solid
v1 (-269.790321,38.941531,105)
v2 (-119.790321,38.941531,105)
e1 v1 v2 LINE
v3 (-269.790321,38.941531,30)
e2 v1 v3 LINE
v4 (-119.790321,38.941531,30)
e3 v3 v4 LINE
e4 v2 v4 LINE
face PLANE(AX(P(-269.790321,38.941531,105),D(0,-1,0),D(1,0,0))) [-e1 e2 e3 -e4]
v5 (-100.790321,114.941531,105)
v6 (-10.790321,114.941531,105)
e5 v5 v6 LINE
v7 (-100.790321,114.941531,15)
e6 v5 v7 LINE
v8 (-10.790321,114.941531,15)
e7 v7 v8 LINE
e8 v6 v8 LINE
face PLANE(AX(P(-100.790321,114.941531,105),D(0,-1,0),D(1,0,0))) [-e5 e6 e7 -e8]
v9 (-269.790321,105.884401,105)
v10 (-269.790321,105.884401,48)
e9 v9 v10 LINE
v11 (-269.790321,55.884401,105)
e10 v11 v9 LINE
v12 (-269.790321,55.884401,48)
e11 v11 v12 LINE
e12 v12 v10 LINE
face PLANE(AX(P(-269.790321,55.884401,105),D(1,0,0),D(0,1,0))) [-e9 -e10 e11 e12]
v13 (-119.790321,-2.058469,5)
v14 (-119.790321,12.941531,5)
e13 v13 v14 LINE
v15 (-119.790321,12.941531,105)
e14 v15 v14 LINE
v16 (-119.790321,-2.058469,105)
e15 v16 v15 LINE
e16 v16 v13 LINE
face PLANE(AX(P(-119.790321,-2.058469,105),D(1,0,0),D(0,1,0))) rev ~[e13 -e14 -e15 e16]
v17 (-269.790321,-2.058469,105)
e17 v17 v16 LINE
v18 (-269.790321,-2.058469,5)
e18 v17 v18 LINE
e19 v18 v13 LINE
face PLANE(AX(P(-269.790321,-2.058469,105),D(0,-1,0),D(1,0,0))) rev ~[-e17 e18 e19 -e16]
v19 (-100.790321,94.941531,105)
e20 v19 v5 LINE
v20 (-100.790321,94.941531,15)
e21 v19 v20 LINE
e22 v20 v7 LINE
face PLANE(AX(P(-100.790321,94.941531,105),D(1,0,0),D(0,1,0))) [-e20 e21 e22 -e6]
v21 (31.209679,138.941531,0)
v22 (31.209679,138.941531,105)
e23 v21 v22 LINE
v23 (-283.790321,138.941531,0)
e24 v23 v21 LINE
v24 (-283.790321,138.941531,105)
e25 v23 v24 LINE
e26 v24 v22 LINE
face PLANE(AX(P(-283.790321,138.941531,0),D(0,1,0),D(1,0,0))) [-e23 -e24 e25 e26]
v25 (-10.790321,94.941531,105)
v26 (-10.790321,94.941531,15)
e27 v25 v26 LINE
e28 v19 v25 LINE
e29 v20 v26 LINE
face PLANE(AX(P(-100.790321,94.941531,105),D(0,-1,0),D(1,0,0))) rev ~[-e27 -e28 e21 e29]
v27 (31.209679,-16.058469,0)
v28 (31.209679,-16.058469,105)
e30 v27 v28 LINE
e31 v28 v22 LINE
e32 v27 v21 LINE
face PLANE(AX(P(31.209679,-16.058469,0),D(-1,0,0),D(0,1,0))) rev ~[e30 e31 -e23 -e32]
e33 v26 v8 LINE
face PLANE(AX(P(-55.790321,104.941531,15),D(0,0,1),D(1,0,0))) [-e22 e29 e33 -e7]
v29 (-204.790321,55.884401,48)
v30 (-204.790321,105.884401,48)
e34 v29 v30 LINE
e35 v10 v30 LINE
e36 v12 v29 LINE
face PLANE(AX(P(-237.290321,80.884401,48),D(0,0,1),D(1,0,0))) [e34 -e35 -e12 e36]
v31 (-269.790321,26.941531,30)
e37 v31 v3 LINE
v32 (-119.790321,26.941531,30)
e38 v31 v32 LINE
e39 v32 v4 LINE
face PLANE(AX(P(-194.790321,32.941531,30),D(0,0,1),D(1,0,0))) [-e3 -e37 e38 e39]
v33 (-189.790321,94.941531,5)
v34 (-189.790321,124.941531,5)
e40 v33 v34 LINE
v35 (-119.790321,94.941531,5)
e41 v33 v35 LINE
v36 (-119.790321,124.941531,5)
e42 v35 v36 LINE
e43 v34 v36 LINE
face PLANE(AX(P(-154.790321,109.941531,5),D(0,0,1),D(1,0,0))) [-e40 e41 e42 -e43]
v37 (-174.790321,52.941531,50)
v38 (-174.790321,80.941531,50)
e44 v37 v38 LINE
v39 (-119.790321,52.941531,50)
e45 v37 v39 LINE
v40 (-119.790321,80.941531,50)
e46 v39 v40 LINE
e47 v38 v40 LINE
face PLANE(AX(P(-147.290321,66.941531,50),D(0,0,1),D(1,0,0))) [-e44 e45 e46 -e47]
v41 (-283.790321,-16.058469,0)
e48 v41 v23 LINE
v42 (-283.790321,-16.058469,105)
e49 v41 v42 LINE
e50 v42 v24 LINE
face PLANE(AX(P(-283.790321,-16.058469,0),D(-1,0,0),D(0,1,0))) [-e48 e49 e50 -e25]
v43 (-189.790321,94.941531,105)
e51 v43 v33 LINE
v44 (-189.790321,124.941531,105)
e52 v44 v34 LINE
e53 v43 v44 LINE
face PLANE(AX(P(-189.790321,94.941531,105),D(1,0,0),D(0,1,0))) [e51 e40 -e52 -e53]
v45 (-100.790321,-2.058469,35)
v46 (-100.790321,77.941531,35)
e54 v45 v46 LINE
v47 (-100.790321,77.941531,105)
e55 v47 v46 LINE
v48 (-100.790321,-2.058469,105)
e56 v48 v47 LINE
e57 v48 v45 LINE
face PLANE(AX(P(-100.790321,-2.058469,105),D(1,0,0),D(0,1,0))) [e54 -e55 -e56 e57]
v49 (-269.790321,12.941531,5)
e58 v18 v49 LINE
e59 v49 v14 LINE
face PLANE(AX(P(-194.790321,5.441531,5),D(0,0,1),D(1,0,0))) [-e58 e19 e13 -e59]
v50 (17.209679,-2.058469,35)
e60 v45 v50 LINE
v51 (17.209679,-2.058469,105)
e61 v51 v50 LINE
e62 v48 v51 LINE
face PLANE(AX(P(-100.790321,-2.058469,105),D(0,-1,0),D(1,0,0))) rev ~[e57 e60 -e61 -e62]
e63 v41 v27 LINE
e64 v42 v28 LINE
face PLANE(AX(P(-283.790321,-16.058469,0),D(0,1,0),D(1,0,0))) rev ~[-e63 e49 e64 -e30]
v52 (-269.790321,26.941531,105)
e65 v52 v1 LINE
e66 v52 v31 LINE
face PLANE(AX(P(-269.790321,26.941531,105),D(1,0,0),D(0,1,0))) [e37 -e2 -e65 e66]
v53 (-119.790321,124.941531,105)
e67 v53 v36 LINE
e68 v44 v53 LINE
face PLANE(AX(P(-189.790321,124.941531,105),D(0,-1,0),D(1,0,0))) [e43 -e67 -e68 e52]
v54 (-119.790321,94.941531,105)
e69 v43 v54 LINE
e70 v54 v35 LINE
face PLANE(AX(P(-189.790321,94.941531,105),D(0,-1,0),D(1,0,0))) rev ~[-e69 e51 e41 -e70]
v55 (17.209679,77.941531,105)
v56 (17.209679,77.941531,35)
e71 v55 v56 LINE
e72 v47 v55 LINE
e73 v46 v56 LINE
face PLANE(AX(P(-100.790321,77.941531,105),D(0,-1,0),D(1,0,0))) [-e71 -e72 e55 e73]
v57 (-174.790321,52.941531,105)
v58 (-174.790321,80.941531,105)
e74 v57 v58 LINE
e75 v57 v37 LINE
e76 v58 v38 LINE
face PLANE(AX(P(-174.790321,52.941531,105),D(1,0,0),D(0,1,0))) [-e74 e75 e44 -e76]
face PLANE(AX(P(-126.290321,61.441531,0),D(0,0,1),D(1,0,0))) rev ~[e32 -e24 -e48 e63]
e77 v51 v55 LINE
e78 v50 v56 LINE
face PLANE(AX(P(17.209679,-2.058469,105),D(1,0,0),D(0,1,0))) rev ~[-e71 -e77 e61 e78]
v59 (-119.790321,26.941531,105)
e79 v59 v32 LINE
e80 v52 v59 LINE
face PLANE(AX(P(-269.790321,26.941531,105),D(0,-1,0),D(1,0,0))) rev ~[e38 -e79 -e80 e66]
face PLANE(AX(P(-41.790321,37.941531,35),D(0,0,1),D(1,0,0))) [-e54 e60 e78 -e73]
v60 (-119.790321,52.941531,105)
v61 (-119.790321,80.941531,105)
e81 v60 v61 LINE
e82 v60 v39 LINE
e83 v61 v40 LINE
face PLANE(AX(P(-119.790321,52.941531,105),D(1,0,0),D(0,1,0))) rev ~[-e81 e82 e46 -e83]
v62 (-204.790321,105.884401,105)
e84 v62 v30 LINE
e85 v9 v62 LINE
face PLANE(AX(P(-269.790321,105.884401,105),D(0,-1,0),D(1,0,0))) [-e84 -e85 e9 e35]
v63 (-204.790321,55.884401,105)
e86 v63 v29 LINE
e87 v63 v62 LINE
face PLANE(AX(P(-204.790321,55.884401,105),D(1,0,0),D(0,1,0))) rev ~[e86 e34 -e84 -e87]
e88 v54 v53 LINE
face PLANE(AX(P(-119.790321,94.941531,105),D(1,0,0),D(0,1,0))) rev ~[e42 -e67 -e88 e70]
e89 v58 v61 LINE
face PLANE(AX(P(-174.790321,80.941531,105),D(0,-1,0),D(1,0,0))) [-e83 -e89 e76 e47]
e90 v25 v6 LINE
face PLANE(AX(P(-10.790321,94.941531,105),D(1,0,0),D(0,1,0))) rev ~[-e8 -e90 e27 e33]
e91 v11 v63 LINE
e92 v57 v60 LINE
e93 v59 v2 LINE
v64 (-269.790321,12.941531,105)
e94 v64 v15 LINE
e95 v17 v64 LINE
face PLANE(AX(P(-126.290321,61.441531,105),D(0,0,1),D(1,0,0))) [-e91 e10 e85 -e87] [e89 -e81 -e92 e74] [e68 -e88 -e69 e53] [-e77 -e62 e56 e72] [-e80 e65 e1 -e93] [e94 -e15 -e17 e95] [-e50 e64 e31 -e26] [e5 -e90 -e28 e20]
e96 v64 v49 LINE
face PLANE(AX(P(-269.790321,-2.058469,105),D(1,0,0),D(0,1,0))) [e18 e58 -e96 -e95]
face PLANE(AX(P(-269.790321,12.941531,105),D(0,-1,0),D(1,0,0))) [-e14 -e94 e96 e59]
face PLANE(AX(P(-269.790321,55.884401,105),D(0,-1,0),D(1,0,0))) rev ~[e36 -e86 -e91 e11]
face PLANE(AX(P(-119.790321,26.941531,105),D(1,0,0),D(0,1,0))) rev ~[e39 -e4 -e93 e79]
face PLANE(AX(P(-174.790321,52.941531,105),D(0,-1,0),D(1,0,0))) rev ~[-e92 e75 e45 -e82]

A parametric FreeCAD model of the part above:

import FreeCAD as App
import Part
import Sketcher
from FreeCAD import Vector


def add_polygon(sketch, points):
    """Adds a closed chain of lines whose ends are joined by coincident constraints."""
    first, n = sketch.GeometryCount, len(points)
    for a, b in zip(points, points[1:] + points[:1]):
        sketch.addGeometry(Part.LineSegment(App.Vector(*a, 0), App.Vector(*b, 0)), False)
    for i in range(n):
        sketch.addConstraint(Sketcher.Constraint("Coincident", first + i, 2, first + (i + 1) % n, 1))

doc = App.newDocument("Part")
params = doc.addObject("Spreadsheet::Sheet", "Params")
for row, (alias, value) in enumerate([
    ("sketch1_width", "315 mm"),
    ("sketch1_height", "155 mm"),
    ("pad1_length", "105 mm"),
    ("sketch2_width", "118 mm"),
    ("sketch2_height", "80 mm"),
    ("pocket1_length", "70 mm"),
    ("sketch3_width", "65 mm"),
    ("sketch3_height", "50 mm"),
    ("pocket2_length", "57 mm"),
    ("sketch4_width", "150 mm"),
    ("sketch4_height", "15 mm"),
    ("pocket3_length", "100 mm"),
    ("sketch5_width", "150 mm"),
    ("sketch5_height", "12 mm"),
    ("pocket4_length", "75 mm"),
    ("sketch6_width", "55 mm"),
    ("sketch6_height", "28 mm"),
    ("pocket5_length", "55 mm"),
    ("sketch7_width", "70 mm"),
    ("sketch7_height", "30 mm"),
    ("pocket6_length", "100 mm"),
    ("sketch8_width", "90 mm"),
    ("sketch8_height", "20 mm"),
    ("pocket7_length", "90 mm"),
], start=1):
    params.set(f"A{row}", alias)
    params.set(f"B{row}", "=" + value)
    params.setAlias(f"B{row}", alias)

body = doc.addObject("PartDesign::Body", "Body")

# Sketch on XY plane
sketch1 = body.newObject("Sketcher::SketchObject", "Sketch")
sketch1.AttachmentSupport = (doc.getObject("XY_Plane"), [""])
sketch1.MapMode = "FlatFace"
add_polygon(sketch1, [(-284, 139), (-284, -16), (31, -16), (31, 139)])  # lines 0-3
sketch1.addConstraint([
    Sketcher.Constraint("Vertical", 0),
    Sketcher.Constraint("Horizontal", 1),
    Sketcher.Constraint("Vertical", 2),
    Sketcher.Constraint("Horizontal", 3),
    Sketcher.Constraint("DistanceX", 1, 1, 1, 2, 315.0),
    Sketcher.Constraint("DistanceY", 0, 2, 0, 1, 155.0),
    Sketcher.Constraint("DistanceX", 0, 2, -1, 1, 283.790321),
    Sketcher.Constraint("DistanceY", 0, 2, -1, 1, 16.058469),
])
sketch1.setExpression("Constraints[8]", "Params.sketch1_width")
sketch1.setExpression("Constraints[9]", "Params.sketch1_height")
pad1 = body.newObject("PartDesign::Pad", "Pad")
pad1.Profile = sketch1
pad1.setExpression("Length", "Params.pad1_length")

# Sketch on XY plane
sketch2 = body.newObject("Sketcher::SketchObject", "Sketch001")
sketch2.AttachmentSupport = (doc.getObject("XY_Plane"), [""])
sketch2.MapMode = "FlatFace"
sketch2.AttachmentOffset = App.Placement(Vector(0, 0, 105), App.Rotation())
add_polygon(sketch2, [(-101, 78), (-101, -2), (17, -2), (17, 78)])  # lines 0-3
sketch2.addConstraint([
    Sketcher.Constraint("Vertical", 0),
    Sketcher.Constraint("Horizontal", 1),
    Sketcher.Constraint("Vertical", 2),
    Sketcher.Constraint("Horizontal", 3),
    Sketcher.Constraint("DistanceX", 1, 1, 1, 2, 118.0),
    Sketcher.Constraint("DistanceY", 0, 2, 0, 1, 80.0),
    Sketcher.Constraint("DistanceX", 0, 2, -1, 1, 100.790321),
    Sketcher.Constraint("DistanceY", 0, 2, -1, 1, 2.058469),
])
sketch2.setExpression("Constraints[8]", "Params.sketch2_width")
sketch2.setExpression("Constraints[9]", "Params.sketch2_height")
pocket1 = body.newObject("PartDesign::Pocket", "Pocket")
pocket1.Profile = sketch2
pocket1.setExpression("Length", "Params.pocket1_length")

# Sketch on XY plane
sketch3 = body.newObject("Sketcher::SketchObject", "Sketch002")
sketch3.AttachmentSupport = (doc.getObject("XY_Plane"), [""])
sketch3.MapMode = "FlatFace"
sketch3.AttachmentOffset = App.Placement(Vector(0, 0, 105), App.Rotation())
add_polygon(sketch3, [(-270, 106), (-270, 56), (-205, 56), (-205, 106)])  # lines 0-3
sketch3.addConstraint([
    Sketcher.Constraint("Vertical", 0),
    Sketcher.Constraint("Horizontal", 1),
    Sketcher.Constraint("Vertical", 2),
    Sketcher.Constraint("Horizontal", 3),
    Sketcher.Constraint("DistanceX", 1, 1, 1, 2, 65.0),
    Sketcher.Constraint("DistanceY", 0, 2, 0, 1, 50.0),
    Sketcher.Constraint("DistanceY", -1, 1, 0, 2, 55.884401),
    Sketcher.Constraint("DistanceX", 0, 2, -1, 1, 269.790321),
])
sketch3.setExpression("Constraints[8]", "Params.sketch3_width")
sketch3.setExpression("Constraints[9]", "Params.sketch3_height")
pocket2 = body.newObject("PartDesign::Pocket", "Pocket001")
pocket2.Profile = sketch3
pocket2.setExpression("Length", "Params.pocket2_length")

# Sketch on XY plane
sketch4 = body.newObject("Sketcher::SketchObject", "Sketch003")
sketch4.AttachmentSupport = (doc.getObject("XY_Plane"), [""])
sketch4.MapMode = "FlatFace"
sketch4.AttachmentOffset = App.Placement(Vector(0, 0, 105), App.Rotation())
add_polygon(sketch4, [(-270, 13), (-270, -2), (-120, -2), (-120, 13)])  # lines 0-3
sketch4.addConstraint([
    Sketcher.Constraint("Vertical", 0),
    Sketcher.Constraint("Horizontal", 1),
    Sketcher.Constraint("Vertical", 2),
    Sketcher.Constraint("Horizontal", 3),
    Sketcher.Constraint("DistanceX", 1, 1, 1, 2, 150.0),
    Sketcher.Constraint("DistanceY", 0, 2, 0, 1, 15.0),
    Sketcher.Constraint("DistanceX", 0, 2, -1, 1, 269.790321),
    Sketcher.Constraint("DistanceY", 0, 2, -1, 1, 2.058469),
])
sketch4.setExpression("Constraints[8]", "Params.sketch4_width")
sketch4.setExpression("Constraints[9]", "Params.sketch4_height")
pocket3 = body.newObject("PartDesign::Pocket", "Pocket002")
pocket3.Profile = sketch4
pocket3.setExpression("Length", "Params.pocket3_length")

# Sketch on XY plane
sketch5 = body.newObject("Sketcher::SketchObject", "Sketch004")
sketch5.AttachmentSupport = (doc.getObject("XY_Plane"), [""])
sketch5.MapMode = "FlatFace"
sketch5.AttachmentOffset = App.Placement(Vector(0, 0, 105), App.Rotation())
add_polygon(sketch5, [(-270, 39), (-270, 27), (-120, 27), (-120, 39)])  # lines 0-3
sketch5.addConstraint([
    Sketcher.Constraint("Vertical", 0),
    Sketcher.Constraint("Horizontal", 1),
    Sketcher.Constraint("Vertical", 2),
    Sketcher.Constraint("Horizontal", 3),
    Sketcher.Constraint("DistanceX", 1, 1, 1, 2, 150.0),
    Sketcher.Constraint("DistanceY", 0, 2, 0, 1, 12.0),
    Sketcher.Constraint("DistanceX", 0, 2, -1, 1, 269.790321),
    Sketcher.Constraint("DistanceY", -1, 1, 0, 2, 26.941531),
])
sketch5.setExpression("Constraints[8]", "Params.sketch5_width")
sketch5.setExpression("Constraints[9]", "Params.sketch5_height")
pocket4 = body.newObject("PartDesign::Pocket", "Pocket003")
pocket4.Profile = sketch5
pocket4.setExpression("Length", "Params.pocket4_length")

# Sketch on XY plane
sketch6 = body.newObject("Sketcher::SketchObject", "Sketch005")
sketch6.AttachmentSupport = (doc.getObject("XY_Plane"), [""])
sketch6.MapMode = "FlatFace"
sketch6.AttachmentOffset = App.Placement(Vector(0, 0, 105), App.Rotation())
add_polygon(sketch6, [(-175, 81), (-175, 53), (-120, 53), (-120, 81)])  # lines 0-3
sketch6.addConstraint([
    Sketcher.Constraint("Vertical", 0),
    Sketcher.Constraint("Horizontal", 1),
    Sketcher.Constraint("Vertical", 2),
    Sketcher.Constraint("Horizontal", 3),
    Sketcher.Constraint("DistanceX", 1, 1, 1, 2, 55.0),
    Sketcher.Constraint("DistanceY", 0, 2, 0, 1, 28.0),
    Sketcher.Constraint("DistanceX", 0, 2, -1, 1, 174.790321),
    Sketcher.Constraint("DistanceY", -1, 1, 0, 2, 52.941531),
])
sketch6.setExpression("Constraints[8]", "Params.sketch6_width")
sketch6.setExpression("Constraints[9]", "Params.sketch6_height")
pocket5 = body.newObject("PartDesign::Pocket", "Pocket004")
pocket5.Profile = sketch6
pocket5.setExpression("Length", "Params.pocket5_length")

# Sketch on XY plane
sketch7 = body.newObject("Sketcher::SketchObject", "Sketch006")
sketch7.AttachmentSupport = (doc.getObject("XY_Plane"), [""])
sketch7.MapMode = "FlatFace"
sketch7.AttachmentOffset = App.Placement(Vector(0, 0, 105), App.Rotation())
add_polygon(sketch7, [(-190, 125), (-190, 95), (-120, 95), (-120, 125)])  # lines 0-3
sketch7.addConstraint([
    Sketcher.Constraint("Vertical", 0),
    Sketcher.Constraint("Horizontal", 1),
    Sketcher.Constraint("Vertical", 2),
    Sketcher.Constraint("Horizontal", 3),
    Sketcher.Constraint("DistanceX", 1, 1, 1, 2, 70.0),
    Sketcher.Constraint("DistanceY", 0, 2, 0, 1, 30.0),
    Sketcher.Constraint("DistanceX", 0, 2, -1, 1, 189.790321),
    Sketcher.Constraint("DistanceY", -1, 1, 0, 2, 94.941531),
])
sketch7.setExpression("Constraints[8]", "Params.sketch7_width")
sketch7.setExpression("Constraints[9]", "Params.sketch7_height")
pocket6 = body.newObject("PartDesign::Pocket", "Pocket005")
pocket6.Profile = sketch7
pocket6.setExpression("Length", "Params.pocket6_length")

# Sketch on XY plane
sketch8 = body.newObject("Sketcher::SketchObject", "Sketch007")
sketch8.AttachmentSupport = (doc.getObject("XY_Plane"), [""])
sketch8.MapMode = "FlatFace"
sketch8.AttachmentOffset = App.Placement(Vector(0, 0, 105), App.Rotation())
add_polygon(sketch8, [(-101, 115), (-101, 95), (-11, 95), (-11, 115)])  # lines 0-3
sketch8.addConstraint([
    Sketcher.Constraint("Vertical", 0),
    Sketcher.Constraint("Horizontal", 1),
    Sketcher.Constraint("Vertical", 2),
    Sketcher.Constraint("Horizontal", 3),
    Sketcher.Constraint("DistanceX", 1, 1, 1, 2, 90.0),
    Sketcher.Constraint("DistanceY", 0, 2, 0, 1, 20.0),
    Sketcher.Constraint("DistanceX", 0, 2, -1, 1, 100.790321),
    Sketcher.Constraint("DistanceY", -1, 1, 0, 2, 94.941531),
])
sketch8.setExpression("Constraints[8]", "Params.sketch8_width")
sketch8.setExpression("Constraints[9]", "Params.sketch8_height")
pocket7 = body.newObject("PartDesign::Pocket", "Pocket006")
pocket7.Profile = sketch8
pocket7.setExpression("Length", "Params.pocket7_length")

doc.recompute()
